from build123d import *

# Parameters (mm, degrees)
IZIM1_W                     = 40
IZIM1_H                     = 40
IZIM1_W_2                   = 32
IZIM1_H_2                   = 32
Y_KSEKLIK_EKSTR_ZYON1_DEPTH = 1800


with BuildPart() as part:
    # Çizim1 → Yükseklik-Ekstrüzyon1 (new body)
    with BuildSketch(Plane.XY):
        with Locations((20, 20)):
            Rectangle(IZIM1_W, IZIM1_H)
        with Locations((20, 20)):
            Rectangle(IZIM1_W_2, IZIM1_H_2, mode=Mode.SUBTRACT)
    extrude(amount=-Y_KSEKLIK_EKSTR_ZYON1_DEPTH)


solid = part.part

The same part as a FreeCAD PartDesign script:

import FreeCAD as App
import Part
import Sketcher

V = App.Vector

doc = App.newDocument("Part")
body = doc.addObject("PartDesign::Body", "Body")

sketch1 = body.newObject("Sketcher::SketchObject", "Sketch")
sketch1.AttachmentSupport = (doc.getObject("XY_Plane"), [""])
sketch1.MapMode = "FlatFace"
sketch1.addGeometry(Part.LineSegment(V(0, 40, 0), V(0, 0, 0)), False)
sketch1.addGeometry(Part.LineSegment(V(0, 0, 0), V(40, 0, 0)), False)
sketch1.addGeometry(Part.LineSegment(V(40, 0, 0), V(40, 40, 0)), False)
sketch1.addGeometry(Part.LineSegment(V(40, 40, 0), V(0, 40, 0)), False)
sketch1.addGeometry(Part.LineSegment(V(36, 4, 0), V(4, 4, 0)), False)
sketch1.addGeometry(Part.LineSegment(V(4, 4, 0), V(4, 36, 0)), False)
sketch1.addGeometry(Part.LineSegment(V(4, 36, 0), V(36, 36, 0)), False)
sketch1.addGeometry(Part.LineSegment(V(36, 36, 0), V(36, 4, 0)), False)
sketch1.addConstraint(Sketcher.Constraint("Coincident", 0, 2, 1, 1))
sketch1.addConstraint(Sketcher.Constraint("Coincident", 1, 2, 2, 1))
sketch1.addConstraint(Sketcher.Constraint("Coincident", 2, 2, 3, 1))
sketch1.addConstraint(Sketcher.Constraint("Coincident", 3, 2, 0, 1))
sketch1.addConstraint(Sketcher.Constraint("Coincident", 4, 2, 5, 1))
sketch1.addConstraint(Sketcher.Constraint("Coincident", 5, 2, 6, 1))
sketch1.addConstraint(Sketcher.Constraint("Coincident", 6, 2, 7, 1))
sketch1.addConstraint(Sketcher.Constraint("Coincident", 7, 2, 4, 1))
sketch1.addConstraint(Sketcher.Constraint("Vertical", 0))
sketch1.addConstraint(Sketcher.Constraint("Horizontal", 1))
sketch1.addConstraint(Sketcher.Constraint("Vertical", 2))
sketch1.addConstraint(Sketcher.Constraint("Horizontal", 3))
sketch1.addConstraint(Sketcher.Constraint("Horizontal", 4))
sketch1.addConstraint(Sketcher.Constraint("Vertical", 5))
sketch1.addConstraint(Sketcher.Constraint("Horizontal", 6))
sketch1.addConstraint(Sketcher.Constraint("Vertical", 7))
sketch1.addConstraint(Sketcher.Constraint("Coincident", 0, 2, -1, 1))
sketch1.addConstraint(Sketcher.Constraint("Equal", 3, 0))
sketch1.addConstraint(Sketcher.Constraint("Equal", 6, 5))
sketch1.addConstraint(Sketcher.Constraint("DistanceX", 1, 1, 1, 2, 40.0))
sketch1.addConstraint(Sketcher.Constraint("DistanceX", 4, 2, 4, 1, 32.0))
sketch1.addConstraint(Sketcher.Constraint("DistanceX", -1, 1, 4, 2, 4.0))
sketch1.addConstraint(Sketcher.Constraint("DistanceY", -1, 1, 4, 2, 4.0))
pad1 = body.newObject("PartDesign::Pad", "Pad")
pad1.Profile = sketch1
pad1.Length = 1800
pad1.Reversed = True

doc.recompute()
